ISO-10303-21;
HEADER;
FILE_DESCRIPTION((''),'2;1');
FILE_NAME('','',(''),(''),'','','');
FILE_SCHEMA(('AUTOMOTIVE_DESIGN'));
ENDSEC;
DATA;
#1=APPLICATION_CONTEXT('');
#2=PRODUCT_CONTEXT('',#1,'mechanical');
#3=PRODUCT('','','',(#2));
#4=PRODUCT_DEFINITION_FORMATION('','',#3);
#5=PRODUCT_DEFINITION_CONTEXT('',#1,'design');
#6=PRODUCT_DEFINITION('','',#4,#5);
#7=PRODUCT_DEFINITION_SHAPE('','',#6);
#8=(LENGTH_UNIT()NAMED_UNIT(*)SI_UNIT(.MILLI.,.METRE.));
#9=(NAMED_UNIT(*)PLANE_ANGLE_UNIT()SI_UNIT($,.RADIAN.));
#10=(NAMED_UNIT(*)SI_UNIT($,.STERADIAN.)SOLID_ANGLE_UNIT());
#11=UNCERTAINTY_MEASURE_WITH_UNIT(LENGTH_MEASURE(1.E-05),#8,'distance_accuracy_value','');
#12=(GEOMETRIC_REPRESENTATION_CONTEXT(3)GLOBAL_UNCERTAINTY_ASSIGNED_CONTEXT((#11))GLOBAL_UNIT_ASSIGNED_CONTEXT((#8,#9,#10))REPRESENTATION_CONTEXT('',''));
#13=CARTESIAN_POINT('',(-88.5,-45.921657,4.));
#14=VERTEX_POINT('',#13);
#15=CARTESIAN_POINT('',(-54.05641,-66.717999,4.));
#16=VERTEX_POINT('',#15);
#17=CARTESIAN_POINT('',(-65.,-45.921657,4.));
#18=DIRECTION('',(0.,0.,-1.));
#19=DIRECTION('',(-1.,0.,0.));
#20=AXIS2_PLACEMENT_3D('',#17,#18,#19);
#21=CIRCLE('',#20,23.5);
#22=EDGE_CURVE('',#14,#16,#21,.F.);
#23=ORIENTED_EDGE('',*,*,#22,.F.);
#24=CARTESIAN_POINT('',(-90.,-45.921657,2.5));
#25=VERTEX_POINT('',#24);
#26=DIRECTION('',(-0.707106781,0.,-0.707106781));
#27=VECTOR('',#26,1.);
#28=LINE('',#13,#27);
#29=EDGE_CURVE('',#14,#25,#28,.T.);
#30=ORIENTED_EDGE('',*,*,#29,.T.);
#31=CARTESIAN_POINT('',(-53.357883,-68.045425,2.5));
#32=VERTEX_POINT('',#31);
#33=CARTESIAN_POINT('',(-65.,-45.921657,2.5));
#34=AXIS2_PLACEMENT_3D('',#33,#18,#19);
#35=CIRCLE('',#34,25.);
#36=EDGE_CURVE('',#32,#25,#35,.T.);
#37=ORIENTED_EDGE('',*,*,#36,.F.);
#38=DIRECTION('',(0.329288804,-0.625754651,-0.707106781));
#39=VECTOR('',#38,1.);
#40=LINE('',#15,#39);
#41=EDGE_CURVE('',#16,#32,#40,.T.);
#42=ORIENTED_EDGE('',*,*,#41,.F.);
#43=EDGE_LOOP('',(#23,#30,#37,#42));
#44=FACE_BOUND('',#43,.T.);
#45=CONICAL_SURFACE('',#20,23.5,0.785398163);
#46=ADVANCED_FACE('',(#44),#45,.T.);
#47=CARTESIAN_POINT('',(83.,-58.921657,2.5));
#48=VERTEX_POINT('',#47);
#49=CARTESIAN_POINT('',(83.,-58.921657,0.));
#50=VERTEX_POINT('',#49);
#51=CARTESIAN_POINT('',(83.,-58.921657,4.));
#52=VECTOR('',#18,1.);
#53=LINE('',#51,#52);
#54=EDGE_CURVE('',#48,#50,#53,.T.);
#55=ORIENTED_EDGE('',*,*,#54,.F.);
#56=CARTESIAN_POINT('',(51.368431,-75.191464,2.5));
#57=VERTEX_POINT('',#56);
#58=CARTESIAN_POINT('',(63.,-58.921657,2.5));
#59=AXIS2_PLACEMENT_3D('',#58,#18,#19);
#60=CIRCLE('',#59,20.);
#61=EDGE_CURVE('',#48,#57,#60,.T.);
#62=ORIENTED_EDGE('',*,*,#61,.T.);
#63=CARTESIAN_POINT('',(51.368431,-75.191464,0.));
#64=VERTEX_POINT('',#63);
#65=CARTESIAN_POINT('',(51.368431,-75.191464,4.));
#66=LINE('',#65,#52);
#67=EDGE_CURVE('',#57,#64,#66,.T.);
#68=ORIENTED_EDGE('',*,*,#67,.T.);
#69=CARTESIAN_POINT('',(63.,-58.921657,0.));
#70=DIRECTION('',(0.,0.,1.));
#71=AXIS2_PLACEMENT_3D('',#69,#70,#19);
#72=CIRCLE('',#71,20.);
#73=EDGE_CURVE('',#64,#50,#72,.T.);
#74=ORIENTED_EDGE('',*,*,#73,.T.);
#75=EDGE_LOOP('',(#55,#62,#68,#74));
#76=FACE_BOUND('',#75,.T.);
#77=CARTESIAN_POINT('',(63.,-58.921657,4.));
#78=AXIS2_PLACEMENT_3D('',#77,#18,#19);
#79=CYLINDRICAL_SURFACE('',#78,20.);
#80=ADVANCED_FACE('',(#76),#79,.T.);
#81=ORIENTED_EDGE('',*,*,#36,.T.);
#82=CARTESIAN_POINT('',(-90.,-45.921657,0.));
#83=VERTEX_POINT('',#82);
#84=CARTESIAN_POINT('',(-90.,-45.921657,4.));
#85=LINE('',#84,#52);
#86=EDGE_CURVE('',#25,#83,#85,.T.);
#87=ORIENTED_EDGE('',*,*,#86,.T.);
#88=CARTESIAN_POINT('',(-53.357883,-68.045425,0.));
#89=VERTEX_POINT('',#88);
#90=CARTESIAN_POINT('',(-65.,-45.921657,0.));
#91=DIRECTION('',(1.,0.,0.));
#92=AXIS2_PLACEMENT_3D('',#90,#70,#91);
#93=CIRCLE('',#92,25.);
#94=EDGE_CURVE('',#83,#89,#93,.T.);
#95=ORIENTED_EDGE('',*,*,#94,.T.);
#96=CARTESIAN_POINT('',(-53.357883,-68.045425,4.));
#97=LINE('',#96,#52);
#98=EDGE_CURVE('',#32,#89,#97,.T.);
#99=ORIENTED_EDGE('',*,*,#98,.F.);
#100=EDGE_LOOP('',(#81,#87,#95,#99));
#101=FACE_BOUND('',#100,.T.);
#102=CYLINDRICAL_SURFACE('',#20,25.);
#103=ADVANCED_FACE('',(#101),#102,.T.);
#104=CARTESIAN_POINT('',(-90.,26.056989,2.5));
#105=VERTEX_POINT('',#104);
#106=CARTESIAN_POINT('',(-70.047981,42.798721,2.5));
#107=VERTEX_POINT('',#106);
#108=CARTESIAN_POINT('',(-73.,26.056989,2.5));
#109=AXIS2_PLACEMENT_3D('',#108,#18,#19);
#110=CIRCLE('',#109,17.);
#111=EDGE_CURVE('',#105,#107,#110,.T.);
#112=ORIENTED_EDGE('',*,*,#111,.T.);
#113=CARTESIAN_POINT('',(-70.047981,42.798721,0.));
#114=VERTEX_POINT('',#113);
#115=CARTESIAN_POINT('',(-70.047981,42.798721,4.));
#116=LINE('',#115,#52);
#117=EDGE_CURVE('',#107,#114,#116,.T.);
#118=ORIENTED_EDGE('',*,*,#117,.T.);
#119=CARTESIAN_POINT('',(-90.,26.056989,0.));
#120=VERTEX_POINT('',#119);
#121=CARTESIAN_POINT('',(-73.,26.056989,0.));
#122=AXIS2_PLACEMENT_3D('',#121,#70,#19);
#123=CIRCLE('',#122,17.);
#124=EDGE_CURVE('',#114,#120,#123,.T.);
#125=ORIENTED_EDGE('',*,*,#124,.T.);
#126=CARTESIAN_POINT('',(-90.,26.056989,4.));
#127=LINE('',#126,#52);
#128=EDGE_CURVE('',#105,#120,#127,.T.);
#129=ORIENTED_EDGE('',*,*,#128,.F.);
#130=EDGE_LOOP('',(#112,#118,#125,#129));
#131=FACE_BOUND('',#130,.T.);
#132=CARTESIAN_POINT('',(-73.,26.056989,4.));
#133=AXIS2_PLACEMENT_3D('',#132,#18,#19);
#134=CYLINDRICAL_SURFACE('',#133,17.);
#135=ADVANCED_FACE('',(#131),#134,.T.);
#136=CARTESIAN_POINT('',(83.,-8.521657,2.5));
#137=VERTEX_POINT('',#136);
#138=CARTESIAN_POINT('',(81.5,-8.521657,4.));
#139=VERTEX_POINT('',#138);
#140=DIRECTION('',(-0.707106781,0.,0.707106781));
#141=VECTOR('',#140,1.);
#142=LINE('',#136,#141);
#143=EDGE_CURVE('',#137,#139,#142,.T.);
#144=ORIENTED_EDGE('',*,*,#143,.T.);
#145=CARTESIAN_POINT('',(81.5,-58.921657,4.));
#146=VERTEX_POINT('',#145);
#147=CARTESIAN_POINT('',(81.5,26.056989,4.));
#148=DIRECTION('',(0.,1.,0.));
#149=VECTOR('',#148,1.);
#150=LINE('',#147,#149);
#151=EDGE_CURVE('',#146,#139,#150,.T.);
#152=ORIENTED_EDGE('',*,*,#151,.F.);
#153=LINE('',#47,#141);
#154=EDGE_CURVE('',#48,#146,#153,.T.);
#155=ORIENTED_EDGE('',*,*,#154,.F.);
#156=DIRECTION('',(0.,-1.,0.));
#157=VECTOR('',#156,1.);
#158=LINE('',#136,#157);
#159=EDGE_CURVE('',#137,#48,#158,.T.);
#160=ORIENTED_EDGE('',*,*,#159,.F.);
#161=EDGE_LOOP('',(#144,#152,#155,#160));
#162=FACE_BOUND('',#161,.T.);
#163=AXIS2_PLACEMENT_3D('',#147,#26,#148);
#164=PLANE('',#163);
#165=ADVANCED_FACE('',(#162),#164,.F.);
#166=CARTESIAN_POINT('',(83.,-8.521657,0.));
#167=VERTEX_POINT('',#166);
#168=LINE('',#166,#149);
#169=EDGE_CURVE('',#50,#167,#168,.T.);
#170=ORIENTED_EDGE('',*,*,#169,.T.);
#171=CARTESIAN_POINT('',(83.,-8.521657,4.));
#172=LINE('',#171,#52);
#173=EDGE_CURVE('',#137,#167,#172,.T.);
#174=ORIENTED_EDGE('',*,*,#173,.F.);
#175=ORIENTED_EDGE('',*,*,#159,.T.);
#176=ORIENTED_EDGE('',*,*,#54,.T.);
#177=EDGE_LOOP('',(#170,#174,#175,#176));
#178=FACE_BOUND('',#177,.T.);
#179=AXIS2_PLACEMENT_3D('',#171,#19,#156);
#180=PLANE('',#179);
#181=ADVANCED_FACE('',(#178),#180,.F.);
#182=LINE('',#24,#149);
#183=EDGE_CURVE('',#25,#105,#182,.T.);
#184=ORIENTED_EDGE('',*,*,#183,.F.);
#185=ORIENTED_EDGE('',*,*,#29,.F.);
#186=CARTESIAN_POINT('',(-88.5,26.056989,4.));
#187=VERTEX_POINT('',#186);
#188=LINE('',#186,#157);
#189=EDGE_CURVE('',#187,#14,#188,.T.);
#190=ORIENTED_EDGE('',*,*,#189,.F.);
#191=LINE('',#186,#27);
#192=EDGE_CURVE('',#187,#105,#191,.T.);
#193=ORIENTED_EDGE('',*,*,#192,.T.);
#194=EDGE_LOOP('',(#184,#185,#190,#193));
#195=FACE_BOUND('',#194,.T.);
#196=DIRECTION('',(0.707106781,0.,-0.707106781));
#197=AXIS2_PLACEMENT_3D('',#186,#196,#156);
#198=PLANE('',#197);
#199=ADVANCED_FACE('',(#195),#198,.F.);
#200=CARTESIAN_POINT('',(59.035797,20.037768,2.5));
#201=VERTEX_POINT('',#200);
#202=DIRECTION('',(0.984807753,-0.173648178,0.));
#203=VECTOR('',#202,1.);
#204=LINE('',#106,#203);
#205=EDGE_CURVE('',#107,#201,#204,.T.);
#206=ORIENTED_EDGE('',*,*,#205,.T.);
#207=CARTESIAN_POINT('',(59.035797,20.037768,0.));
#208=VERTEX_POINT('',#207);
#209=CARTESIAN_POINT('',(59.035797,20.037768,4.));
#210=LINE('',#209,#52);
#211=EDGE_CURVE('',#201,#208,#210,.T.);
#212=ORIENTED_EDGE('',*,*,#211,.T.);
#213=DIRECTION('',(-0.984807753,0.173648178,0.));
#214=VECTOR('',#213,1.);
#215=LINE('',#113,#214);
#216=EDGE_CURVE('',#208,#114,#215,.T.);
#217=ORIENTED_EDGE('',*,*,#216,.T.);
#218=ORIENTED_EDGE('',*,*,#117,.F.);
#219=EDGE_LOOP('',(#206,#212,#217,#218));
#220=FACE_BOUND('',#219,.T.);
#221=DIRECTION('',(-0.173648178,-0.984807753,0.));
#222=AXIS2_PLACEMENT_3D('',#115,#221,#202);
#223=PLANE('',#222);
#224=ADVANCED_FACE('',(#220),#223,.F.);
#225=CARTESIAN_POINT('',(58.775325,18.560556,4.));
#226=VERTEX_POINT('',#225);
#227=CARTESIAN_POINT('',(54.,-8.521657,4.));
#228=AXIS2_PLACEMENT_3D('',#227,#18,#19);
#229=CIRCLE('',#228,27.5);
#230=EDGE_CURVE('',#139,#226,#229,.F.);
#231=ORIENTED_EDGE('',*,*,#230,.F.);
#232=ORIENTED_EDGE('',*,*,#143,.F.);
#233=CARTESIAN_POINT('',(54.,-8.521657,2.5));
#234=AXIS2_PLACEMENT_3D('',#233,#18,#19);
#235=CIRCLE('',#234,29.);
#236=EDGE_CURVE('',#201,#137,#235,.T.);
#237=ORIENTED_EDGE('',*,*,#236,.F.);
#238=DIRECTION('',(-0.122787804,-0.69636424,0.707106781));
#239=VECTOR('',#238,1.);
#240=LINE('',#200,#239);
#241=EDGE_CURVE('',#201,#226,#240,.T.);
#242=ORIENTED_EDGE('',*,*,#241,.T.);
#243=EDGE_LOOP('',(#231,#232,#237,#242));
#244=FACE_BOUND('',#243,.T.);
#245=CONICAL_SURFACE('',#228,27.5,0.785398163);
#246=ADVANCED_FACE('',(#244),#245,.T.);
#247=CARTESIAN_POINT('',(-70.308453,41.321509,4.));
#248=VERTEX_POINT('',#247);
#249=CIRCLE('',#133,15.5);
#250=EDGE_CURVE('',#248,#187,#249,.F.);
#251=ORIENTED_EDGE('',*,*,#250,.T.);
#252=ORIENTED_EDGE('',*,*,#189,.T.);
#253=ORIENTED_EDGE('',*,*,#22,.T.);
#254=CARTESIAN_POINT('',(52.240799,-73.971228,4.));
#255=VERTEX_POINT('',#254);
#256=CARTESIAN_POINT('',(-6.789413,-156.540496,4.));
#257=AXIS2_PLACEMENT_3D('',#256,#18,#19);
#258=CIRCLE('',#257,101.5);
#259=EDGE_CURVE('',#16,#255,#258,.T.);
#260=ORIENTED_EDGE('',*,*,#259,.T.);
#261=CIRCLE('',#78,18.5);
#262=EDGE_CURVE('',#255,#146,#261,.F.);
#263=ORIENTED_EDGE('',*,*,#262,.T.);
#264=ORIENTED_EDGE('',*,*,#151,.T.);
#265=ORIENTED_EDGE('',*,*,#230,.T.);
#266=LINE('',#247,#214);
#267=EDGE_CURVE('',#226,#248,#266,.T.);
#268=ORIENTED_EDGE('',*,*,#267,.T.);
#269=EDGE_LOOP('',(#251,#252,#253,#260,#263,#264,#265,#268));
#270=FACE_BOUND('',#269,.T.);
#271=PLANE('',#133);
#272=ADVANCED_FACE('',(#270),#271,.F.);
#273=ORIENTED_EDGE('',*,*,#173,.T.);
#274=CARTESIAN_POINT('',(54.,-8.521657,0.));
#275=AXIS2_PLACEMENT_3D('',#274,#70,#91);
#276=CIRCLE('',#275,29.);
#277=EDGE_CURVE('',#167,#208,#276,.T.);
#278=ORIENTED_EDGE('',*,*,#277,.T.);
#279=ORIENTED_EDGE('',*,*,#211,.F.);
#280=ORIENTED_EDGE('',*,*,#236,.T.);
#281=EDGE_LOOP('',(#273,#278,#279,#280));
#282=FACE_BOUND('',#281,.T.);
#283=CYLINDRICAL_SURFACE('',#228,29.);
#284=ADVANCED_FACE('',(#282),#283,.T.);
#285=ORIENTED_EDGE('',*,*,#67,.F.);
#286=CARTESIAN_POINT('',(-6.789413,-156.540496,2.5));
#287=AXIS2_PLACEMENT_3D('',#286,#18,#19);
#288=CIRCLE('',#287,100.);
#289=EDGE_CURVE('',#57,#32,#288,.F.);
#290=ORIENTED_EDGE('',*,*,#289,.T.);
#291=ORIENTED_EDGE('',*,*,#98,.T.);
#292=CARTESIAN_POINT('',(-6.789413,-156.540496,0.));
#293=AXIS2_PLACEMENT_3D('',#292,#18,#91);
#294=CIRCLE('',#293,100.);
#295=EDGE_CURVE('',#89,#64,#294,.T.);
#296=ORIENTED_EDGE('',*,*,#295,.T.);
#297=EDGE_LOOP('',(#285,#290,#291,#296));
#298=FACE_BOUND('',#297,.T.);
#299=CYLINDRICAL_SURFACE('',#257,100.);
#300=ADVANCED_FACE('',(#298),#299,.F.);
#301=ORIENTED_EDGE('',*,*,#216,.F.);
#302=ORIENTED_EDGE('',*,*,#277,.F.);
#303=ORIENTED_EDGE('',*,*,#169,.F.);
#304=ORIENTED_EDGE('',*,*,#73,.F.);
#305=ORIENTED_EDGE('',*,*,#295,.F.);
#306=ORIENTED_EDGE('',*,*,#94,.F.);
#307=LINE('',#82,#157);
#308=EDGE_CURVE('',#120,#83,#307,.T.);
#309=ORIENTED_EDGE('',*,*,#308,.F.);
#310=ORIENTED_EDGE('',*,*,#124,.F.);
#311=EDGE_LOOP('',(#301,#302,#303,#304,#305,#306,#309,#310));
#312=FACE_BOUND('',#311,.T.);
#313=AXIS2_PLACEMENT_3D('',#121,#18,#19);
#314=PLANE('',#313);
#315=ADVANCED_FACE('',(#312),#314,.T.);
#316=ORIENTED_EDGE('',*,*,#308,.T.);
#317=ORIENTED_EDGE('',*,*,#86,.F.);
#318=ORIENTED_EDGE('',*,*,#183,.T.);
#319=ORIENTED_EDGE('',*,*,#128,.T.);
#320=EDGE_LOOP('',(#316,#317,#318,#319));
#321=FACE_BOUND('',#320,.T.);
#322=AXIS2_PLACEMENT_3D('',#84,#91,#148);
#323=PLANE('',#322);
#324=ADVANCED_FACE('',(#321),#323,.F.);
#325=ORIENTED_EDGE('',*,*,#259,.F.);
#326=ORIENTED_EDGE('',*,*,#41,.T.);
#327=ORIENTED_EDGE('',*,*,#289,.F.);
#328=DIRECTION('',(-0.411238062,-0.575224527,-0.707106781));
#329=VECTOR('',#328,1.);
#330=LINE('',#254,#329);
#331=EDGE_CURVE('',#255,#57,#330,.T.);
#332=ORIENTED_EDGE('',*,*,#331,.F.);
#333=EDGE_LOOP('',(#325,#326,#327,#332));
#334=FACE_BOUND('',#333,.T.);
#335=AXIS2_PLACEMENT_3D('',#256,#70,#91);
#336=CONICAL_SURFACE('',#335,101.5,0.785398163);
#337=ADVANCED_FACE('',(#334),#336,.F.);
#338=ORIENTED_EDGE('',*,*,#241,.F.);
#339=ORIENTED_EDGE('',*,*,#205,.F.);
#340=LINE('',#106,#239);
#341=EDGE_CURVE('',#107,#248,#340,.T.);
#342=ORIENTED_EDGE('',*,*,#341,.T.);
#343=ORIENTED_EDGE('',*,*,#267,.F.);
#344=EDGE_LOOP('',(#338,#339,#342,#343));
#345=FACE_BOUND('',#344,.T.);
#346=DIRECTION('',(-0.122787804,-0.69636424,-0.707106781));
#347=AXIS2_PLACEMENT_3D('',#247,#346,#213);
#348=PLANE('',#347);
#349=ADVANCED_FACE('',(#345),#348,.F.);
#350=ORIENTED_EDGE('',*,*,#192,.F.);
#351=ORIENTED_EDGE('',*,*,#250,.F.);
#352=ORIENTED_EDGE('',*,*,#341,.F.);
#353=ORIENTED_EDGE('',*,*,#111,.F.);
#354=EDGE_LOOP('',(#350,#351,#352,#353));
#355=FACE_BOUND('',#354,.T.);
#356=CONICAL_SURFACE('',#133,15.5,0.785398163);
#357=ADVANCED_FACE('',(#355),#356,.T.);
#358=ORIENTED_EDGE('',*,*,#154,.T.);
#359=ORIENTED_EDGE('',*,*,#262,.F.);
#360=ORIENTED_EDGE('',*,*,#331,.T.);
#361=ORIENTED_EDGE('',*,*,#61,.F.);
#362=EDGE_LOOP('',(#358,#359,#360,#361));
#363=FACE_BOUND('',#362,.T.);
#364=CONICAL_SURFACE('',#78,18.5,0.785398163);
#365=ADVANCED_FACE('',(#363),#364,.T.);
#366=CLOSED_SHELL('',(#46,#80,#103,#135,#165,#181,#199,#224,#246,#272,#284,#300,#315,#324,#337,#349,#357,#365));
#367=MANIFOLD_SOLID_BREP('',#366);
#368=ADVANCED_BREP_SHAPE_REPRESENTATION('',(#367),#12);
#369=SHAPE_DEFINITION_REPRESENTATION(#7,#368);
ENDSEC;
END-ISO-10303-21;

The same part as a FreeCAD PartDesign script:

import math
import FreeCAD as App
import Part
import Sketcher

V = App.Vector
Q = App.Units.Quantity


def edges_at(feature, points):
    """Names of the edges that pass closest to the given points."""
    edges = feature.Shape.Edges
    near = lambda p: min(range(len(edges)), key=lambda i: edges[i].distToShape(Part.Vertex(*p))[0])
    return sorted({f"Edge{near(p) + 1}" for p in points})

doc = App.newDocument("Part")
body = doc.addObject("PartDesign::Body", "Body")

# Sketch on XY plane
sketch1 = body.newObject("Sketcher::SketchObject", "Sketch")
sketch1.AttachmentSupport = (doc.getObject("XY_Plane"), [""])
sketch1.MapMode = "FlatFace"
sketch1.addGeometry(Part.LineSegment(V(59.035797, 20.037768, 0), V(-70.047981, 42.798721, 0)), False)
sketch1.addGeometry(Part.ArcOfCircle(Part.Circle(V(-73, 26.056989, 0), V(0, 0, 1), 17), math.radians(80), math.radians(180)), False)
sketch1.addGeometry(Part.LineSegment(V(-90, 26.056989, 0), V(-90, -45.921657, 0)), False)
sketch1.addGeometry(Part.ArcOfCircle(Part.Circle(V(-65, -45.921657, 0), V(0, 0, 1), 25), math.radians(180), math.radians(297.754543)), False)
sketch1.addGeometry(Part.ArcOfCircle(Part.Circle(V(-6.789413, -156.540496, 0), V(0, 0, 1), 100), math.radians(54.438361), math.radians(117.754543)), False)
sketch1.addGeometry(Part.ArcOfCircle(Part.Circle(V(63, -58.921657, 0), V(0, 0, 1), 20), math.radians(-125.561639), math.radians(0)), False)
sketch1.addGeometry(Part.LineSegment(V(83, -58.921657, 0), V(83, -8.521657, 0)), False)
sketch1.addGeometry(Part.ArcOfCircle(Part.Circle(V(54, -8.521657, 0), V(0, 0, 1), 29), math.radians(0), math.radians(80)), False)
sketch1.addConstraint(Sketcher.Constraint("Tangent", 0, 2, 1, 1))
sketch1.addConstraint(Sketcher.Constraint("Tangent", 1, 2, 2, 1))
sketch1.addConstraint(Sketcher.Constraint("Tangent", 2, 2, 3, 1))
sketch1.addConstraint(Sketcher.Constraint("Tangent", 3, 2, 4, 2))
sketch1.addConstraint(Sketcher.Constraint("Tangent", 4, 1, 5, 1))
sketch1.addConstraint(Sketcher.Constraint("Tangent", 5, 2, 6, 1))
sketch1.addConstraint(Sketcher.Constraint("Tangent", 6, 2, 7, 1))
sketch1.addConstraint(Sketcher.Constraint("Tangent", 7, 2, 0, 1))
sketch1.addConstraint(Sketcher.Constraint("Vertical", 2))
sketch1.addConstraint(Sketcher.Constraint("Vertical", 6))
sketch1.addConstraint(Sketcher.Constraint("Radius", 1, 17.0))
sketch1.addConstraint(Sketcher.Constraint("Radius", 3, 25.0))
sketch1.addConstraint(Sketcher.Constraint("Radius", 4, 100.0))
sketch1.addConstraint(Sketcher.Constraint("Radius", 5, 20.0))
sketch1.addConstraint(Sketcher.Constraint("Radius", 7, 29.0))
sketch1.addConstraint(Sketcher.Constraint("Angle", 0, Q("170 deg")))
sketch1.addConstraint(Sketcher.Constraint("DistanceY", 6, 1, 6, 2, 50.4))
sketch1.addConstraint(Sketcher.Constraint("DistanceX", 1, 3, -1, 1, 73.0))
sketch1.addConstraint(Sketcher.Constraint("DistanceX", -1, 1, 5, 3, 63.0))
sketch1.addConstraint(Sketcher.Constraint("DistanceY", 5, 3, 3, 3, 13.0))
sketch1.addConstraint(Sketcher.Constraint("DistanceY", -1, 1, 1, 3, 26.056989))
pad1 = body.newObject("PartDesign::Pad", "Pad")
pad1.Profile = sketch1
pad1.Length = 4
doc.recompute()

chamfer = body.newObject("PartDesign::Chamfer", "Chamfer")
chamfer.Base = (pad1, edges_at(pad1, [
    (-77.922, -67.323, 4),
    (0.018, -56.772, 4),
    (72.148, -76.707, 4),
    (83, -33.722, 4),
    (76.215, 10.119, 4),
    (-5.506, 31.418, 4),
    (-83.927, 39.08, 4),
    (-90, -9.932, 4),
]))
chamfer.Size = 1.5

doc.recompute()
